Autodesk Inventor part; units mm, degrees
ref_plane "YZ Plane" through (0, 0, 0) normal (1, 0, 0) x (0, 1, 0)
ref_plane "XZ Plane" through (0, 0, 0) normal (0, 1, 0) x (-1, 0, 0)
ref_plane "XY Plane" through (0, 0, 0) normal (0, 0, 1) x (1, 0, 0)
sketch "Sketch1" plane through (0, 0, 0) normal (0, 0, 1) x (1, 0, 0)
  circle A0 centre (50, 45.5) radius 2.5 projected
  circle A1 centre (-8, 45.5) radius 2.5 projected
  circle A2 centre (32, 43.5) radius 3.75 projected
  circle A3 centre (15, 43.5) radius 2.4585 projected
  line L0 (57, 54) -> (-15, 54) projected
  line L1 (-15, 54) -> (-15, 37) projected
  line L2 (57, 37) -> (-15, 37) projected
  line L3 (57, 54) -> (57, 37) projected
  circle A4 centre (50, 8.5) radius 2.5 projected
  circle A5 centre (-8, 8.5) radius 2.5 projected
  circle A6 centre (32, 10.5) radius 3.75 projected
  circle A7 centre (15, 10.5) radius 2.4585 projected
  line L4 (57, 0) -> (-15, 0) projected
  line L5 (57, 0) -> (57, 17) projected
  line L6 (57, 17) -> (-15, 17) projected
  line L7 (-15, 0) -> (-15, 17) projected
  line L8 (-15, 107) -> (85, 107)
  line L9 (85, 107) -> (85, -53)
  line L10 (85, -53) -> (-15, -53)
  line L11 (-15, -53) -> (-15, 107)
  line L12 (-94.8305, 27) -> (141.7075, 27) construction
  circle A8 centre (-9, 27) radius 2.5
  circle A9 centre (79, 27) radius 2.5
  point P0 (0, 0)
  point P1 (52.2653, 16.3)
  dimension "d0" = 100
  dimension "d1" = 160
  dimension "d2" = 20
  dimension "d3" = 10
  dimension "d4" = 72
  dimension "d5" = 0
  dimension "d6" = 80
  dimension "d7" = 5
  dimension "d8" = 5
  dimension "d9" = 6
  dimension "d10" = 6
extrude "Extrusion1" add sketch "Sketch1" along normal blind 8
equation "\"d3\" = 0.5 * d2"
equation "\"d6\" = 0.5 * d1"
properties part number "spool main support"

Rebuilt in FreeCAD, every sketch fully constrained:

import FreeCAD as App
import Part
import Sketcher
Q = App.Units.Quantity

doc = App.newDocument("Part")
body = doc.addObject("PartDesign::Body", "Body")

sketch1 = body.newObject("Sketcher::SketchObject", "Sketch")
sketch1.AttachmentSupport = (doc.getObject("XY_Plane"), [""])
sketch1.MapMode = "FlatFace"
sketch1.addGeometry([
    Part.LineSegment(App.Vector(-15, -53, 0), App.Vector(85, -53, 0)),
    Part.LineSegment(App.Vector(85, -53, 0), App.Vector(85, 107, 0)),
    Part.LineSegment(App.Vector(85, 107, 0), App.Vector(-15, 107, 0)),
    Part.LineSegment(App.Vector(-15, 107, 0), App.Vector(-15, -53, 0)),
    Part.Circle(App.Vector(-8, 45.5, 0), App.Vector(0, 0, 1), 2.5),
    Part.Circle(App.Vector(15, 43.5, 0), App.Vector(0, 0, 1), 2.4585),
    Part.Circle(App.Vector(32, 43.5, 0), App.Vector(0, 0, 1), 3.75),
    Part.Circle(App.Vector(50, 45.5, 0), App.Vector(0, 0, 1), 2.5),
    Part.Circle(App.Vector(79, 27, 0), App.Vector(0, 0, 1), 2.5),
    Part.Circle(App.Vector(-9, 27, 0), App.Vector(0, 0, 1), 2.5),
    Part.Circle(App.Vector(15, 10.5, 0), App.Vector(0, 0, 1), 2.4585),
    Part.Circle(App.Vector(32, 10.5, 0), App.Vector(0, 0, 1), 3.75),
    Part.Circle(App.Vector(50, 8.5, 0), App.Vector(0, 0, 1), 2.5),
    Part.Circle(App.Vector(-8, 8.5, 0), App.Vector(0, 0, 1), 2.5),
], False)
sketch1.addConstraint([
    Sketcher.Constraint("Coincident", 0, 2, 1, 1),
    Sketcher.Constraint("Coincident", 1, 2, 2, 1),
    Sketcher.Constraint("Coincident", 2, 2, 3, 1),
    Sketcher.Constraint("Coincident", 3, 2, 0, 1),
    Sketcher.Constraint("Horizontal", 0),
    Sketcher.Constraint("Vertical", 1),
    Sketcher.Constraint("Horizontal", 2),
    Sketcher.Constraint("Vertical", 3),
    Sketcher.Constraint("Equal", 4, 7),
    Sketcher.Constraint("Equal", 7, 8),
    Sketcher.Constraint("Equal", 8, 9),
    Sketcher.Constraint("Equal", 5, 10),
    Sketcher.Constraint("Equal", 6, 11),
    Sketcher.Constraint("Equal", 9, 12),
    Sketcher.Constraint("Equal", 12, 13),
    Sketcher.Constraint("Horizontal", 5, 3, 6, 3),
    Sketcher.Constraint("Horizontal", 4, 3, 7, 3),
    Sketcher.Constraint("Horizontal", 8, 3, 9, 3),
    Sketcher.Constraint("Horizontal", 10, 3, 11, 3),
    Sketcher.Constraint("Horizontal", 12, 3, 13, 3),
    Sketcher.Constraint("Vertical", 5, 3, 10, 3),
    Sketcher.Constraint("Vertical", 6, 3, 11, 3),
    Sketcher.Constraint("Vertical", 7, 3, 12, 3),
    Sketcher.Constraint("Vertical", 4, 3, 13, 3),
    Sketcher.Constraint("Diameter", 4, Q("5 mm")),
    Sketcher.Constraint("DistanceX", 0, 1, 0, 2, Q("100 mm")),
    Sketcher.Constraint("DistanceY", 1, 1, 1, 2, Q("160 mm")),
    Sketcher.Constraint("DistanceX", 8, 3, 0, 2, Q("6 mm")),
    Sketcher.Constraint("DistanceY", 0, 2, 8, 3, Q("80 mm")),
    Sketcher.Constraint("DistanceX", 2, 2, 9, 3, Q("6 mm")),
    Sketcher.Constraint("Diameter", 6, Q("7.5 mm")),
    Sketcher.Constraint("Diameter", 5, Q("4.917 mm")),
    Sketcher.Constraint("DistanceX", 4, 3, -1, 1, Q("8 mm")),
    Sketcher.Constraint("DistanceX", -1, 1, 5, 3, Q("15 mm")),
    Sketcher.Constraint("DistanceX", -1, 1, 6, 3, Q("32 mm")),
    Sketcher.Constraint("DistanceX", -1, 1, 7, 3, Q("50 mm")),
    Sketcher.Constraint("DistanceX", -1, 1, 8, 3, Q("79 mm")),
    Sketcher.Constraint("DistanceY", -1, 1, 8, 3, Q("27 mm")),
    Sketcher.Constraint("DistanceY", 5, 3, 4, 3, Q("2 mm")),
    Sketcher.Constraint("DistanceY", 10, 3, 5, 3, Q("33 mm")),
    Sketcher.Constraint("DistanceY", 12, 3, 11, 3, Q("2 mm")),
    Sketcher.Constraint("DistanceY", -1, 1, 4, 3, Q("45.5 mm")),
])
pad1 = body.newObject("PartDesign::Pad", "Pad")
pad1.Profile = sketch1
pad1.Length = 8

doc.recompute()
